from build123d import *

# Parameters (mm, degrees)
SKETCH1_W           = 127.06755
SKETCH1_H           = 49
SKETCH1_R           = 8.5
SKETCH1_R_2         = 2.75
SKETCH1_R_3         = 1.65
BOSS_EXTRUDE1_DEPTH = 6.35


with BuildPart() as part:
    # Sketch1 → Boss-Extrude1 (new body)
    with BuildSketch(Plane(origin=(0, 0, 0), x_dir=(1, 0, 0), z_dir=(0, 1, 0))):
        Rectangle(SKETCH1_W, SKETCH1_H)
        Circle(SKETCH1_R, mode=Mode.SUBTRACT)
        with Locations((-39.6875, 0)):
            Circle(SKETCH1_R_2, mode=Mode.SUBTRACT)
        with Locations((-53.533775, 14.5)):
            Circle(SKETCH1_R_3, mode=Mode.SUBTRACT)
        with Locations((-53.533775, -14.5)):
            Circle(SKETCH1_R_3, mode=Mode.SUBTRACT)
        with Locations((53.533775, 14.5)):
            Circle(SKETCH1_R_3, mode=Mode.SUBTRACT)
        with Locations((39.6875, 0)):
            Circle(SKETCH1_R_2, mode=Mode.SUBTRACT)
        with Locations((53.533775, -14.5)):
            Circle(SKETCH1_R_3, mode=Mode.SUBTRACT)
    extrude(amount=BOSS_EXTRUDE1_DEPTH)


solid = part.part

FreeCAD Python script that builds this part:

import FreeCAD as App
import Part
import Sketcher

V = App.Vector
Q = App.Units.Quantity


def add_polygon(sketch, points):
    """Adds a closed chain of lines whose ends are joined by coincident constraints."""
    first, n = sketch.GeometryCount, len(points)
    for a, b in zip(points, points[1:] + points[:1]):
        sketch.addGeometry(Part.LineSegment(App.Vector(*a, 0), App.Vector(*b, 0)), False)
    for i in range(n):
        sketch.addConstraint(Sketcher.Constraint("Coincident", first + i, 2, first + (i + 1) % n, 1))

doc = App.newDocument("Part")
body = doc.addObject("PartDesign::Body", "Body")

# Sketch on XZ plane
sketch1 = body.newObject("Sketcher::SketchObject", "Sketch")
sketch1.AttachmentSupport = (doc.getObject("XZ_Plane"), [""])
sketch1.MapMode = "FlatFace"
add_polygon(sketch1, [(-63.5, -24.5), (-63.5, 24.5), (63.5, 24.5), (63.5, -24.5)])  # lines 0-3
sketch1.addGeometry(Part.Circle(V(-53.5, 14.5, 0), V(0, 0, 1), 1.6), False)  # 4
sketch1.addGeometry(Part.Circle(V(53.5, 14.5, 0), V(0, 0, 1), 1.6), False)  # 5
sketch1.addGeometry(Part.Circle(V(-39.7, 0, 0), V(0, 0, 1), 2.8), False)  # 6
sketch1.addGeometry(Part.Circle(V(-53.5, -14.5, 0), V(0, 0, 1), 1.6), False)  # 7
sketch1.addGeometry(Part.Circle(V(0, 0, 0), V(0, 0, 1), 8.5), False)  # 8
sketch1.addGeometry(Part.Circle(V(39.7, 0, 0), V(0, 0, 1), 2.8), False)  # 9
sketch1.addGeometry(Part.Circle(V(53.5, -14.5, 0), V(0, 0, 1), 1.6), False)  # 10
sketch1.addConstraint(Sketcher.Constraint("Vertical", 0))
sketch1.addConstraint(Sketcher.Constraint("Horizontal", 1))
sketch1.addConstraint(Sketcher.Constraint("Vertical", 2))
sketch1.addConstraint(Sketcher.Constraint("Horizontal", 3))
sketch1.addConstraint(Sketcher.Constraint("Coincident", 8, 3, -1, 1))
sketch1.addConstraint(Sketcher.Constraint("Equal", 4, 5))
sketch1.addConstraint(Sketcher.Constraint("Equal", 5, 7))
sketch1.addConstraint(Sketcher.Constraint("Equal", 6, 9))
sketch1.addConstraint(Sketcher.Constraint("Equal", 7, 10))
sketch1.addConstraint(Sketcher.Constraint("Symmetric", 5, 3, 7, 3, -1, 1))
sketch1.addConstraint(Sketcher.Constraint("Symmetric", 6, 3, 9, 3, -1, 1))
sketch1.addConstraint(Sketcher.Constraint("Symmetric", 4, 3, 10, 3, -1, 1))
sketch1.addConstraint(Sketcher.Constraint("Symmetric", 0, 2, 2, 2, -1, 1))
sketch1.addConstraint(Sketcher.Constraint("Symmetric", 4, 3, 5, 3, -2))
sketch1.addConstraint(Sketcher.Constraint("PointOnObject", 6, 3, -1))
sketch1.addConstraint(Sketcher.Constraint("Diameter", 8, Q("17 mm")))
sketch1.addConstraint(Sketcher.Constraint("Diameter", 4, Q("3.3 mm")))
sketch1.addConstraint(Sketcher.Constraint("Diameter", 6, Q("5.5 mm")))
sketch1.addConstraint(Sketcher.Constraint("DistanceY", 0, 1, 0, 2, Q("49 mm")))
sketch1.addConstraint(Sketcher.Constraint("DistanceY", 7, 3, 4, 3, Q("29 mm")))
sketch1.addConstraint(Sketcher.Constraint("DistanceX", 0, 2, 4, 3, Q("10 mm")))
sketch1.addConstraint(Sketcher.Constraint("DistanceX", 6, 3, 9, 3, Q("79.375 mm")))
sketch1.addConstraint(Sketcher.Constraint("DistanceX", 1, 1, 1, 2, Q("127.06755 mm")))
pad1 = body.newObject("PartDesign::Pad", "Pad")
pad1.Profile = sketch1
pad1.Length = 6.35
pad1.Reversed = True

doc.recompute()
